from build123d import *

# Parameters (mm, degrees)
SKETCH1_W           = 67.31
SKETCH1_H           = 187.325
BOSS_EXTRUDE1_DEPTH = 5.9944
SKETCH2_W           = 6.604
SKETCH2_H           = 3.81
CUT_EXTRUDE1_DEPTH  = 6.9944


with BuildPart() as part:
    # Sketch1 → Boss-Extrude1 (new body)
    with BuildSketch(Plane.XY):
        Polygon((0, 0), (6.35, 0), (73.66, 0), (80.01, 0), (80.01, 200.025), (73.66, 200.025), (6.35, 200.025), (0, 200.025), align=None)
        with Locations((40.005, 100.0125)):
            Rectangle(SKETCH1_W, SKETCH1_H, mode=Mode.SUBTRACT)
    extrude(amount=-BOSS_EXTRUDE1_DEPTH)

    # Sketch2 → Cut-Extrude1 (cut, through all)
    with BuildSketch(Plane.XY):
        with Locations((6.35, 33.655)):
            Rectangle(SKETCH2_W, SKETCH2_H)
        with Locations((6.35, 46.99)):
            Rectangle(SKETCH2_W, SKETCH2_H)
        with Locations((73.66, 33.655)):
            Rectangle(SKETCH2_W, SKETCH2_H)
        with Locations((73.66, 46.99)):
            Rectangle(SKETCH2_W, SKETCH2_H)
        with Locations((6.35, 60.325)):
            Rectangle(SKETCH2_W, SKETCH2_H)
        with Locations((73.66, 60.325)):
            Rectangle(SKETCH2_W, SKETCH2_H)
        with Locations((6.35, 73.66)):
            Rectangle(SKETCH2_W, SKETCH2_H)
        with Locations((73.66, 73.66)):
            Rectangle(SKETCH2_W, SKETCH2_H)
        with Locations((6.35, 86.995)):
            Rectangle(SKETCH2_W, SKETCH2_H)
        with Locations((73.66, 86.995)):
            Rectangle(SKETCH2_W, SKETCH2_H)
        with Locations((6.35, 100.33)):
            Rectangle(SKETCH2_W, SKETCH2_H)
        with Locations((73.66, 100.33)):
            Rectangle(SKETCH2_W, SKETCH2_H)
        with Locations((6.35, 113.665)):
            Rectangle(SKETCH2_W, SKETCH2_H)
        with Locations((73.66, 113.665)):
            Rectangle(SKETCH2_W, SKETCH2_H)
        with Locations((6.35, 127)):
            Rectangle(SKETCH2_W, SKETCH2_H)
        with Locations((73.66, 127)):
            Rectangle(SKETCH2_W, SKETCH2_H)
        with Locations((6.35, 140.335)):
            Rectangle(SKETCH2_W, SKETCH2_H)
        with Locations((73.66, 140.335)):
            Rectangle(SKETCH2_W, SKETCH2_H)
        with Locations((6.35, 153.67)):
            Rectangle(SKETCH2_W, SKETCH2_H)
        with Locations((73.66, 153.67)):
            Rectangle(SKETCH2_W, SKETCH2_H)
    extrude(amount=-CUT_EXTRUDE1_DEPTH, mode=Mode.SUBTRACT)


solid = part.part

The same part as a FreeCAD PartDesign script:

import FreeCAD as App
import Part
import Sketcher

V = App.Vector
Q = App.Units.Quantity

doc = App.newDocument("Part")
params = doc.addObject("Spreadsheet::Sheet", "Params")
for row, (alias, value) in enumerate([
    ("sketch1_width", "3.15 in"),
    ("sketch1_width2", "2.65 in"),
    ("sketch1_height", "7.875 in"),
    ("sketch1_height2", "7.375 in"),
    ("pad1_length", "0.236 in"),
    ("sketch2_width", "0.26 in"),
    ("sketch2_height", "0.15 in"),
], start=1):
    params.set(f"A{row}", alias)
    params.set(f"B{row}", "=" + value)
    params.setAlias(f"B{row}", alias)

body = doc.addObject("PartDesign::Body", "Body")

sketch1 = body.newObject("Sketcher::SketchObject", "Sketch")
sketch1.AttachmentSupport = (doc.getObject("XY_Plane"), [""])
sketch1.MapMode = "FlatFace"
sketch1.addGeometry([
    Part.LineSegment(V(0, 0, 0), V(80, 0, 0)),
    Part.LineSegment(V(80, 0, 0), V(80, 200, 0)),
    Part.LineSegment(V(80, 200, 0), V(0, 200, 0)),
    Part.LineSegment(V(0, 200, 0), V(0, 0, 0)),
    Part.LineSegment(V(74, 6, 0), V(6, 6, 0)),
    Part.LineSegment(V(6, 6, 0), V(6, 194, 0)),
    Part.LineSegment(V(6, 194, 0), V(74, 194, 0)),
    Part.LineSegment(V(74, 194, 0), V(74, 6, 0)),
], False)
sketch1.addConstraint([
    Sketcher.Constraint("Coincident", 0, 2, 1, 1),
    Sketcher.Constraint("Coincident", 1, 2, 2, 1),
    Sketcher.Constraint("Coincident", 2, 2, 3, 1),
    Sketcher.Constraint("Coincident", 3, 2, 0, 1),
    Sketcher.Constraint("Coincident", 4, 2, 5, 1),
    Sketcher.Constraint("Coincident", 5, 2, 6, 1),
    Sketcher.Constraint("Coincident", 6, 2, 7, 1),
    Sketcher.Constraint("Coincident", 7, 2, 4, 1),
    Sketcher.Constraint("Horizontal", 0),
    Sketcher.Constraint("Vertical", 1),
    Sketcher.Constraint("Horizontal", 2),
    Sketcher.Constraint("Vertical", 3),
    Sketcher.Constraint("Horizontal", 4),
    Sketcher.Constraint("Vertical", 5),
    Sketcher.Constraint("Horizontal", 6),
    Sketcher.Constraint("Vertical", 7),
    Sketcher.Constraint("Coincident", 3, 2, -1, 1),
    Sketcher.Constraint("DistanceX", 0, 1, 0, 2, Q("3.15 in")),
    Sketcher.Constraint("DistanceX", 4, 2, 4, 1, Q("2.65 in")),
    Sketcher.Constraint("DistanceX", -1, 1, 6, 2, Q("2.9 in")),
    Sketcher.Constraint("DistanceY", 1, 1, 1, 2, Q("7.875 in")),
    Sketcher.Constraint("DistanceY", 5, 1, 5, 2, Q("7.375 in")),
    Sketcher.Constraint("DistanceY", -1, 1, 4, 2, Q("0.25 in")),
])
sketch1.setExpression("Constraints[17]", "Params.sketch1_width")
sketch1.setExpression("Constraints[18]", "Params.sketch1_width2")
sketch1.setExpression("Constraints[20]", "Params.sketch1_height")
sketch1.setExpression("Constraints[21]", "Params.sketch1_height2")
pad1 = body.newObject("PartDesign::Pad", "Pad")
pad1.Profile = sketch1
pad1.setExpression("Length", "Params.pad1_length")
pad1.Reversed = True

sketch2 = body.newObject("Sketcher::SketchObject", "Sketch001")
sketch2.AttachmentSupport = (doc.getObject("XY_Plane"), [""])
sketch2.MapMode = "FlatFace"
sketch2.addGeometry([
    Part.LineSegment(V(3, 35.6, 0), V(3, 31.8, 0)),
    Part.LineSegment(V(3, 31.8, 0), V(9.7, 31.8, 0)),
    Part.LineSegment(V(9.7, 31.8, 0), V(9.7, 35.6, 0)),
    Part.LineSegment(V(9.7, 35.6, 0), V(3, 35.6, 0)),
    Part.LineSegment(V(3, 48.9, 0), V(3, 45.1, 0)),
    Part.LineSegment(V(3, 45.1, 0), V(9.7, 45.1, 0)),
    Part.LineSegment(V(9.7, 45.1, 0), V(9.7, 48.9, 0)),
    Part.LineSegment(V(9.7, 48.9, 0), V(3, 48.9, 0)),
    Part.LineSegment(V(70.4, 35.6, 0), V(70.4, 31.8, 0)),
    Part.LineSegment(V(70.4, 31.8, 0), V(77, 31.8, 0)),
    Part.LineSegment(V(77, 31.8, 0), V(77, 35.6, 0)),
    Part.LineSegment(V(77, 35.6, 0), V(70.4, 35.6, 0)),
    Part.LineSegment(V(70.4, 48.9, 0), V(70.4, 45.1, 0)),
    Part.LineSegment(V(70.4, 45.1, 0), V(77, 45.1, 0)),
    Part.LineSegment(V(77, 45.1, 0), V(77, 48.9, 0)),
    Part.LineSegment(V(77, 48.9, 0), V(70.4, 48.9, 0)),
    Part.LineSegment(V(3, 62.2, 0), V(3, 58.4, 0)),
    Part.LineSegment(V(3, 58.4, 0), V(9.7, 58.4, 0)),
    Part.LineSegment(V(9.7, 58.4, 0), V(9.7, 62.2, 0)),
    Part.LineSegment(V(9.7, 62.2, 0), V(3, 62.2, 0)),
    Part.LineSegment(V(70.4, 62.2, 0), V(70.4, 58.4, 0)),
    Part.LineSegment(V(70.4, 58.4, 0), V(77, 58.4, 0)),
    Part.LineSegment(V(77, 58.4, 0), V(77, 62.2, 0)),
    Part.LineSegment(V(77, 62.2, 0), V(70.4, 62.2, 0)),
    Part.LineSegment(V(3, 75.6, 0), V(3, 71.8, 0)),
    Part.LineSegment(V(3, 71.8, 0), V(9.7, 71.8, 0)),
    Part.LineSegment(V(9.7, 71.8, 0), V(9.7, 75.6, 0)),
    Part.LineSegment(V(9.7, 75.6, 0), V(3, 75.6, 0)),
    Part.LineSegment(V(70.4, 75.6, 0), V(70.4, 71.8, 0)),
    Part.LineSegment(V(70.4, 71.8, 0), V(77, 71.8, 0)),
    Part.LineSegment(V(77, 71.8, 0), V(77, 75.6, 0)),
    Part.LineSegment(V(77, 75.6, 0), V(70.4, 75.6, 0)),
    Part.LineSegment(V(3, 88.9, 0), V(3, 85.1, 0)),
    Part.LineSegment(V(3, 85.1, 0), V(9.7, 85.1, 0)),
    Part.LineSegment(V(9.7, 85.1, 0), V(9.7, 88.9, 0)),
    Part.LineSegment(V(9.7, 88.9, 0), V(3, 88.9, 0)),
    Part.LineSegment(V(70.4, 88.9, 0), V(70.4, 85.1, 0)),
    Part.LineSegment(V(70.4, 85.1, 0), V(77, 85.1, 0)),
    Part.LineSegment(V(77, 85.1, 0), V(77, 88.9, 0)),
    Part.LineSegment(V(77, 88.9, 0), V(70.4, 88.9, 0)),
    Part.LineSegment(V(3, 102.2, 0), V(3, 98.4, 0)),
    Part.LineSegment(V(3, 98.4, 0), V(9.7, 98.4, 0)),
    Part.LineSegment(V(9.7, 98.4, 0), V(9.7, 102.2, 0)),
    Part.LineSegment(V(9.7, 102.2, 0), V(3, 102.2, 0)),
    Part.LineSegment(V(70.4, 102.2, 0), V(70.4, 98.4, 0)),
    Part.LineSegment(V(70.4, 98.4, 0), V(77, 98.4, 0)),
    Part.LineSegment(V(77, 98.4, 0), V(77, 102.2, 0)),
    Part.LineSegment(V(77, 102.2, 0), V(70.4, 102.2, 0)),
    Part.LineSegment(V(3, 115.6, 0), V(3, 111.8, 0)),
    Part.LineSegment(V(3, 111.8, 0), V(9.7, 111.8, 0)),
    Part.LineSegment(V(9.7, 111.8, 0), V(9.7, 115.6, 0)),
    Part.LineSegment(V(9.7, 115.6, 0), V(3, 115.6, 0)),
    Part.LineSegment(V(70.4, 115.6, 0), V(70.4, 111.8, 0)),
    Part.LineSegment(V(70.4, 111.8, 0), V(77, 111.8, 0)),
    Part.LineSegment(V(77, 111.8, 0), V(77, 115.6, 0)),
    Part.LineSegment(V(77, 115.6, 0), V(70.4, 115.6, 0)),
    Part.LineSegment(V(3, 128.9, 0), V(3, 125.1, 0)),
    Part.LineSegment(V(3, 125.1, 0), V(9.7, 125.1, 0)),
    Part.LineSegment(V(9.7, 125.1, 0), V(9.7, 128.9, 0)),
    Part.LineSegment(V(9.7, 128.9, 0), V(3, 128.9, 0)),
    Part.LineSegment(V(70.4, 128.9, 0), V(70.4, 125.1, 0)),
    Part.LineSegment(V(70.4, 125.1, 0), V(77, 125.1, 0)),
    Part.LineSegment(V(77, 125.1, 0), V(77, 128.9, 0)),
    Part.LineSegment(V(77, 128.9, 0), V(70.4, 128.9, 0)),
    Part.LineSegment(V(3, 142.2, 0), V(3, 138.4, 0)),
    Part.LineSegment(V(3, 138.4, 0), V(9.7, 138.4, 0)),
    Part.LineSegment(V(9.7, 138.4, 0), V(9.7, 142.2, 0)),
    Part.LineSegment(V(9.7, 142.2, 0), V(3, 142.2, 0)),
    Part.LineSegment(V(70.4, 142.2, 0), V(70.4, 138.4, 0)),
    Part.LineSegment(V(70.4, 138.4, 0), V(77, 138.4, 0)),
    Part.LineSegment(V(77, 138.4, 0), V(77, 142.2, 0)),
    Part.LineSegment(V(77, 142.2, 0), V(70.4, 142.2, 0)),
    Part.LineSegment(V(3, 155.6, 0), V(3, 151.8, 0)),
    Part.LineSegment(V(3, 151.8, 0), V(9.7, 151.8, 0)),
    Part.LineSegment(V(9.7, 151.8, 0), V(9.7, 155.6, 0)),
    Part.LineSegment(V(9.7, 155.6, 0), V(3, 155.6, 0)),
    Part.LineSegment(V(70.4, 155.6, 0), V(70.4, 151.8, 0)),
    Part.LineSegment(V(70.4, 151.8, 0), V(77, 151.8, 0)),
    Part.LineSegment(V(77, 151.8, 0), V(77, 155.6, 0)),
    Part.LineSegment(V(77, 155.6, 0), V(70.4, 155.6, 0)),
], False)
sketch2.addConstraint([
    Sketcher.Constraint("Coincident", 0, 2, 1, 1),
    Sketcher.Constraint("Coincident", 1, 2, 2, 1),
    Sketcher.Constraint("Coincident", 2, 2, 3, 1),
    Sketcher.Constraint("Coincident", 3, 2, 0, 1),
    Sketcher.Constraint("Coincident", 4, 2, 5, 1),
    Sketcher.Constraint("Coincident", 5, 2, 6, 1),
    Sketcher.Constraint("Coincident", 6, 2, 7, 1),
    Sketcher.Constraint("Coincident", 7, 2, 4, 1),
    Sketcher.Constraint("Coincident", 8, 2, 9, 1),
    Sketcher.Constraint("Coincident", 9, 2, 10, 1),
    Sketcher.Constraint("Coincident", 10, 2, 11, 1),
    Sketcher.Constraint("Coincident", 11, 2, 8, 1),
    Sketcher.Constraint("Coincident", 12, 2, 13, 1),
    Sketcher.Constraint("Coincident", 13, 2, 14, 1),
    Sketcher.Constraint("Coincident", 14, 2, 15, 1),
    Sketcher.Constraint("Coincident", 15, 2, 12, 1),
    Sketcher.Constraint("Coincident", 16, 2, 17, 1),
    Sketcher.Constraint("Coincident", 17, 2, 18, 1),
    Sketcher.Constraint("Coincident", 18, 2, 19, 1),
    Sketcher.Constraint("Coincident", 19, 2, 16, 1),
    Sketcher.Constraint("Coincident", 20, 2, 21, 1),
    Sketcher.Constraint("Coincident", 21, 2, 22, 1),
    Sketcher.Constraint("Coincident", 22, 2, 23, 1),
    Sketcher.Constraint("Coincident", 23, 2, 20, 1),
    Sketcher.Constraint("Coincident", 24, 2, 25, 1),
    Sketcher.Constraint("Coincident", 25, 2, 26, 1),
    Sketcher.Constraint("Coincident", 26, 2, 27, 1),
    Sketcher.Constraint("Coincident", 27, 2, 24, 1),
    Sketcher.Constraint("Coincident", 28, 2, 29, 1),
    Sketcher.Constraint("Coincident", 29, 2, 30, 1),
    Sketcher.Constraint("Coincident", 30, 2, 31, 1),
    Sketcher.Constraint("Coincident", 31, 2, 28, 1),
    Sketcher.Constraint("Coincident", 32, 2, 33, 1),
    Sketcher.Constraint("Coincident", 33, 2, 34, 1),
    Sketcher.Constraint("Coincident", 34, 2, 35, 1),
    Sketcher.Constraint("Coincident", 35, 2, 32, 1),
    Sketcher.Constraint("Coincident", 36, 2, 37, 1),
    Sketcher.Constraint("Coincident", 37, 2, 38, 1),
    Sketcher.Constraint("Coincident", 38, 2, 39, 1),
    Sketcher.Constraint("Coincident", 39, 2, 36, 1),
    Sketcher.Constraint("Coincident", 40, 2, 41, 1),
    Sketcher.Constraint("Coincident", 41, 2, 42, 1),
    Sketcher.Constraint("Coincident", 42, 2, 43, 1),
    Sketcher.Constraint("Coincident", 43, 2, 40, 1),
    Sketcher.Constraint("Coincident", 44, 2, 45, 1),
    Sketcher.Constraint("Coincident", 45, 2, 46, 1),
    Sketcher.Constraint("Coincident", 46, 2, 47, 1),
    Sketcher.Constraint("Coincident", 47, 2, 44, 1),
    Sketcher.Constraint("Coincident", 48, 2, 49, 1),
    Sketcher.Constraint("Coincident", 49, 2, 50, 1),
    Sketcher.Constraint("Coincident", 50, 2, 51, 1),
    Sketcher.Constraint("Coincident", 51, 2, 48, 1),
    Sketcher.Constraint("Coincident", 52, 2, 53, 1),
    Sketcher.Constraint("Coincident", 53, 2, 54, 1),
    Sketcher.Constraint("Coincident", 54, 2, 55, 1),
    Sketcher.Constraint("Coincident", 55, 2, 52, 1),
    Sketcher.Constraint("Coincident", 56, 2, 57, 1),
    Sketcher.Constraint("Coincident", 57, 2, 58, 1),
    Sketcher.Constraint("Coincident", 58, 2, 59, 1),
    Sketcher.Constraint("Coincident", 59, 2, 56, 1),
    Sketcher.Constraint("Coincident", 60, 2, 61, 1),
    Sketcher.Constraint("Coincident", 61, 2, 62, 1),
    Sketcher.Constraint("Coincident", 62, 2, 63, 1),
    Sketcher.Constraint("Coincident", 63, 2, 60, 1),
    Sketcher.Constraint("Coincident", 64, 2, 65, 1),
    Sketcher.Constraint("Coincident", 65, 2, 66, 1),
    Sketcher.Constraint("Coincident", 66, 2, 67, 1),
    Sketcher.Constraint("Coincident", 67, 2, 64, 1),
    Sketcher.Constraint("Coincident", 68, 2, 69, 1),
    Sketcher.Constraint("Coincident", 69, 2, 70, 1),
    Sketcher.Constraint("Coincident", 70, 2, 71, 1),
    Sketcher.Constraint("Coincident", 71, 2, 68, 1),
    Sketcher.Constraint("Coincident", 72, 2, 73, 1),
    Sketcher.Constraint("Coincident", 73, 2, 74, 1),
    Sketcher.Constraint("Coincident", 74, 2, 75, 1),
    Sketcher.Constraint("Coincident", 75, 2, 72, 1),
    Sketcher.Constraint("Coincident", 76, 2, 77, 1),
    Sketcher.Constraint("Coincident", 77, 2, 78, 1),
    Sketcher.Constraint("Coincident", 78, 2, 79, 1),
    Sketcher.Constraint("Coincident", 79, 2, 76, 1),
    Sketcher.Constraint("Vertical", 0),
    Sketcher.Constraint("Horizontal", 1),
    Sketcher.Constraint("Vertical", 2),
    Sketcher.Constraint("Horizontal", 3),
    Sketcher.Constraint("Vertical", 4),
    Sketcher.Constraint("Horizontal", 5),
    Sketcher.Constraint("Vertical", 6),
    Sketcher.Constraint("Horizontal", 7),
    Sketcher.Constraint("Vertical", 8),
    Sketcher.Constraint("Horizontal", 9),
    Sketcher.Constraint("Vertical", 10),
    Sketcher.Constraint("Horizontal", 11),
    Sketcher.Constraint("Vertical", 12),
    Sketcher.Constraint("Horizontal", 13),
    Sketcher.Constraint("Vertical", 14),
    Sketcher.Constraint("Horizontal", 15),
    Sketcher.Constraint("Vertical", 16),
    Sketcher.Constraint("Horizontal", 17),
    Sketcher.Constraint("Vertical", 18),
    Sketcher.Constraint("Horizontal", 19),
    Sketcher.Constraint("Vertical", 20),
    Sketcher.Constraint("Horizontal", 21),
    Sketcher.Constraint("Vertical", 22),
    Sketcher.Constraint("Horizontal", 23),
    Sketcher.Constraint("Vertical", 24),
    Sketcher.Constraint("Horizontal", 25),
    Sketcher.Constraint("Vertical", 26),
    Sketcher.Constraint("Horizontal", 27),
    Sketcher.Constraint("Vertical", 28),
    Sketcher.Constraint("Horizontal", 29),
    Sketcher.Constraint("Vertical", 30),
    Sketcher.Constraint("Horizontal", 31),
    Sketcher.Constraint("Vertical", 32),
    Sketcher.Constraint("Horizontal", 33),
    Sketcher.Constraint("Vertical", 34),
    Sketcher.Constraint("Horizontal", 35),
    Sketcher.Constraint("Vertical", 36),
    Sketcher.Constraint("Horizontal", 37),
    Sketcher.Constraint("Vertical", 38),
    Sketcher.Constraint("Horizontal", 39),
    Sketcher.Constraint("Vertical", 40),
    Sketcher.Constraint("Horizontal", 41),
    Sketcher.Constraint("Vertical", 42),
    Sketcher.Constraint("Horizontal", 43),
    Sketcher.Constraint("Vertical", 44),
    Sketcher.Constraint("Horizontal", 45),
    Sketcher.Constraint("Vertical", 46),
    Sketcher.Constraint("Horizontal", 47),
    Sketcher.Constraint("Vertical", 48),
    Sketcher.Constraint("Horizontal", 49),
    Sketcher.Constraint("Vertical", 50),
    Sketcher.Constraint("Horizontal", 51),
    Sketcher.Constraint("Vertical", 52),
    Sketcher.Constraint("Horizontal", 53),
    Sketcher.Constraint("Vertical", 54),
    Sketcher.Constraint("Horizontal", 55),
    Sketcher.Constraint("Vertical", 56),
    Sketcher.Constraint("Horizontal", 57),
    Sketcher.Constraint("Vertical", 58),
    Sketcher.Constraint("Horizontal", 59),
    Sketcher.Constraint("Vertical", 60),
    Sketcher.Constraint("Horizontal", 61),
    Sketcher.Constraint("Vertical", 62),
    Sketcher.Constraint("Horizontal", 63),
    Sketcher.Constraint("Vertical", 64),
    Sketcher.Constraint("Horizontal", 65),
    Sketcher.Constraint("Vertical", 66),
    Sketcher.Constraint("Horizontal", 67),
    Sketcher.Constraint("Vertical", 68),
    Sketcher.Constraint("Horizontal", 69),
    Sketcher.Constraint("Vertical", 70),
    Sketcher.Constraint("Horizontal", 71),
    Sketcher.Constraint("Vertical", 72),
    Sketcher.Constraint("Horizontal", 73),
    Sketcher.Constraint("Vertical", 74),
    Sketcher.Constraint("Horizontal", 75),
    Sketcher.Constraint("Vertical", 76),
    Sketcher.Constraint("Horizontal", 77),
    Sketcher.Constraint("Vertical", 78),
    Sketcher.Constraint("Horizontal", 79),
    Sketcher.Constraint("Horizontal", 1, 2, 8, 2),
    Sketcher.Constraint("Horizontal", 3, 2, 10, 2),
    Sketcher.Constraint("Horizontal", 5, 2, 12, 2),
    Sketcher.Constraint("Horizontal", 7, 2, 14, 2),
    Sketcher.Constraint("Horizontal", 17, 2, 20, 2),
    Sketcher.Constraint("Horizontal", 19, 2, 22, 2),
    Sketcher.Constraint("Horizontal", 25, 2, 28, 2),
    Sketcher.Constraint("Horizontal", 27, 2, 30, 2),
    Sketcher.Constraint("Horizontal", 33, 2, 36, 2),
    Sketcher.Constraint("Horizontal", 35, 2, 38, 2),
    Sketcher.Constraint("Horizontal", 41, 2, 44, 2),
    Sketcher.Constraint("Horizontal", 43, 2, 46, 2),
    Sketcher.Constraint("Horizontal", 49, 2, 52, 2),
    Sketcher.Constraint("Horizontal", 51, 2, 54, 2),
    Sketcher.Constraint("Horizontal", 57, 2, 60, 2),
    Sketcher.Constraint("Horizontal", 59, 2, 62, 2),
    Sketcher.Constraint("Horizontal", 65, 2, 68, 2),
    Sketcher.Constraint("Horizontal", 67, 2, 70, 2),
    Sketcher.Constraint("Horizontal", 73, 2, 76, 2),
    Sketcher.Constraint("Horizontal", 75, 2, 78, 2),
    Sketcher.Constraint("Vertical", 3, 2, 4, 2),
    Sketcher.Constraint("Vertical", 2, 2, 5, 2),
    Sketcher.Constraint("Vertical", 11, 2, 12, 2),
    Sketcher.Constraint("Vertical", 10, 2, 13, 2),
    Sketcher.Constraint("Vertical", 7, 2, 16, 2),
    Sketcher.Constraint("Vertical", 6, 2, 17, 2),
    Sketcher.Constraint("Vertical", 15, 2, 20, 2),
    Sketcher.Constraint("Vertical", 14, 2, 21, 2),
    Sketcher.Constraint("Vertical", 19, 2, 24, 2),
    Sketcher.Constraint("Vertical", 18, 2, 25, 2),
    Sketcher.Constraint("Vertical", 23, 2, 28, 2),
    Sketcher.Constraint("Vertical", 22, 2, 29, 2),
    Sketcher.Constraint("Vertical", 27, 2, 32, 2),
    Sketcher.Constraint("Vertical", 26, 2, 33, 2),
    Sketcher.Constraint("Vertical", 31, 2, 36, 2),
    Sketcher.Constraint("Vertical", 30, 2, 37, 2),
    Sketcher.Constraint("Vertical", 35, 2, 40, 2),
    Sketcher.Constraint("Vertical", 34, 2, 41, 2),
    Sketcher.Constraint("Vertical", 39, 2, 44, 2),
    Sketcher.Constraint("Vertical", 38, 2, 45, 2),
    Sketcher.Constraint("Vertical", 43, 2, 48, 2),
    Sketcher.Constraint("Vertical", 42, 2, 49, 2),
    Sketcher.Constraint("Vertical", 47, 2, 52, 2),
    Sketcher.Constraint("Vertical", 46, 2, 53, 2),
    Sketcher.Constraint("Vertical", 51, 2, 56, 2),
    Sketcher.Constraint("Vertical", 50, 2, 57, 2),
    Sketcher.Constraint("Vertical", 55, 2, 60, 2),
    Sketcher.Constraint("Vertical", 54, 2, 61, 2),
    Sketcher.Constraint("Vertical", 59, 2, 64, 2),
    Sketcher.Constraint("Vertical", 58, 2, 65, 2),
    Sketcher.Constraint("Vertical", 63, 2, 68, 2),
    Sketcher.Constraint("Vertical", 62, 2, 69, 2),
    Sketcher.Constraint("Vertical", 67, 2, 72, 2),
    Sketcher.Constraint("Vertical", 66, 2, 73, 2),
    Sketcher.Constraint("Vertical", 71, 2, 76, 2),
    Sketcher.Constraint("Vertical", 70, 2, 77, 2),
    Sketcher.Constraint("Equal", 7, 9),
    Sketcher.Constraint("Equal", 2, 4),
    Sketcher.Constraint("Equal", 14, 16),
    Sketcher.Constraint("Equal", 22, 24),
    Sketcher.Constraint("Equal", 30, 32),
    Sketcher.Constraint("Equal", 38, 40),
    Sketcher.Constraint("Equal", 46, 48),
    Sketcher.Constraint("Equal", 54, 56),
    Sketcher.Constraint("Equal", 62, 64),
    Sketcher.Constraint("Equal", 70, 72),
    Sketcher.Constraint("DistanceX", 1, 1, 1, 2, Q("0.26 in")),
    Sketcher.Constraint("DistanceY", 0, 2, 0, 1, Q("0.15 in")),
    Sketcher.Constraint("DistanceY", -1, 1, 2, 2, Q("1.4 in")),
    Sketcher.Constraint("DistanceY", -1, 1, 16, 2, Q("2.3 in")),
    Sketcher.Constraint("DistanceY", -1, 1, 34, 2, Q("3.5 in")),
    Sketcher.Constraint("DistanceY", -1, 1, 48, 2, Q("4.4 in")),
    Sketcher.Constraint("DistanceY", -1, 1, 66, 2, Q("5.6 in")),
    Sketcher.Constraint("DistanceX", -1, 1, 0, 2, Q("0.12 in")),
    Sketcher.Constraint("DistanceX", -1, 1, 8, 2, Q("2.77 in")),
    Sketcher.Constraint("DistanceY", -1, 1, 4, 2, Q("1.775 in")),
    Sketcher.Constraint("DistanceY", -1, 1, 24, 2, Q("2.825 in")),
    Sketcher.Constraint("DistanceY", -1, 1, 40, 2, Q("3.875 in")),
    Sketcher.Constraint("DistanceY", -1, 1, 56, 2, Q("4.925 in")),
    Sketcher.Constraint("DistanceY", -1, 1, 72, 2, Q("5.975 in")),
])
sketch2.setExpression("Constraints[226]", "Params.sketch2_width")
sketch2.setExpression("Constraints[227]", "Params.sketch2_height")
pocket1 = body.newObject("PartDesign::Pocket", "Pocket")
pocket1.Profile = sketch2
pocket1.Type = "ThroughAll"

doc.recompute()
